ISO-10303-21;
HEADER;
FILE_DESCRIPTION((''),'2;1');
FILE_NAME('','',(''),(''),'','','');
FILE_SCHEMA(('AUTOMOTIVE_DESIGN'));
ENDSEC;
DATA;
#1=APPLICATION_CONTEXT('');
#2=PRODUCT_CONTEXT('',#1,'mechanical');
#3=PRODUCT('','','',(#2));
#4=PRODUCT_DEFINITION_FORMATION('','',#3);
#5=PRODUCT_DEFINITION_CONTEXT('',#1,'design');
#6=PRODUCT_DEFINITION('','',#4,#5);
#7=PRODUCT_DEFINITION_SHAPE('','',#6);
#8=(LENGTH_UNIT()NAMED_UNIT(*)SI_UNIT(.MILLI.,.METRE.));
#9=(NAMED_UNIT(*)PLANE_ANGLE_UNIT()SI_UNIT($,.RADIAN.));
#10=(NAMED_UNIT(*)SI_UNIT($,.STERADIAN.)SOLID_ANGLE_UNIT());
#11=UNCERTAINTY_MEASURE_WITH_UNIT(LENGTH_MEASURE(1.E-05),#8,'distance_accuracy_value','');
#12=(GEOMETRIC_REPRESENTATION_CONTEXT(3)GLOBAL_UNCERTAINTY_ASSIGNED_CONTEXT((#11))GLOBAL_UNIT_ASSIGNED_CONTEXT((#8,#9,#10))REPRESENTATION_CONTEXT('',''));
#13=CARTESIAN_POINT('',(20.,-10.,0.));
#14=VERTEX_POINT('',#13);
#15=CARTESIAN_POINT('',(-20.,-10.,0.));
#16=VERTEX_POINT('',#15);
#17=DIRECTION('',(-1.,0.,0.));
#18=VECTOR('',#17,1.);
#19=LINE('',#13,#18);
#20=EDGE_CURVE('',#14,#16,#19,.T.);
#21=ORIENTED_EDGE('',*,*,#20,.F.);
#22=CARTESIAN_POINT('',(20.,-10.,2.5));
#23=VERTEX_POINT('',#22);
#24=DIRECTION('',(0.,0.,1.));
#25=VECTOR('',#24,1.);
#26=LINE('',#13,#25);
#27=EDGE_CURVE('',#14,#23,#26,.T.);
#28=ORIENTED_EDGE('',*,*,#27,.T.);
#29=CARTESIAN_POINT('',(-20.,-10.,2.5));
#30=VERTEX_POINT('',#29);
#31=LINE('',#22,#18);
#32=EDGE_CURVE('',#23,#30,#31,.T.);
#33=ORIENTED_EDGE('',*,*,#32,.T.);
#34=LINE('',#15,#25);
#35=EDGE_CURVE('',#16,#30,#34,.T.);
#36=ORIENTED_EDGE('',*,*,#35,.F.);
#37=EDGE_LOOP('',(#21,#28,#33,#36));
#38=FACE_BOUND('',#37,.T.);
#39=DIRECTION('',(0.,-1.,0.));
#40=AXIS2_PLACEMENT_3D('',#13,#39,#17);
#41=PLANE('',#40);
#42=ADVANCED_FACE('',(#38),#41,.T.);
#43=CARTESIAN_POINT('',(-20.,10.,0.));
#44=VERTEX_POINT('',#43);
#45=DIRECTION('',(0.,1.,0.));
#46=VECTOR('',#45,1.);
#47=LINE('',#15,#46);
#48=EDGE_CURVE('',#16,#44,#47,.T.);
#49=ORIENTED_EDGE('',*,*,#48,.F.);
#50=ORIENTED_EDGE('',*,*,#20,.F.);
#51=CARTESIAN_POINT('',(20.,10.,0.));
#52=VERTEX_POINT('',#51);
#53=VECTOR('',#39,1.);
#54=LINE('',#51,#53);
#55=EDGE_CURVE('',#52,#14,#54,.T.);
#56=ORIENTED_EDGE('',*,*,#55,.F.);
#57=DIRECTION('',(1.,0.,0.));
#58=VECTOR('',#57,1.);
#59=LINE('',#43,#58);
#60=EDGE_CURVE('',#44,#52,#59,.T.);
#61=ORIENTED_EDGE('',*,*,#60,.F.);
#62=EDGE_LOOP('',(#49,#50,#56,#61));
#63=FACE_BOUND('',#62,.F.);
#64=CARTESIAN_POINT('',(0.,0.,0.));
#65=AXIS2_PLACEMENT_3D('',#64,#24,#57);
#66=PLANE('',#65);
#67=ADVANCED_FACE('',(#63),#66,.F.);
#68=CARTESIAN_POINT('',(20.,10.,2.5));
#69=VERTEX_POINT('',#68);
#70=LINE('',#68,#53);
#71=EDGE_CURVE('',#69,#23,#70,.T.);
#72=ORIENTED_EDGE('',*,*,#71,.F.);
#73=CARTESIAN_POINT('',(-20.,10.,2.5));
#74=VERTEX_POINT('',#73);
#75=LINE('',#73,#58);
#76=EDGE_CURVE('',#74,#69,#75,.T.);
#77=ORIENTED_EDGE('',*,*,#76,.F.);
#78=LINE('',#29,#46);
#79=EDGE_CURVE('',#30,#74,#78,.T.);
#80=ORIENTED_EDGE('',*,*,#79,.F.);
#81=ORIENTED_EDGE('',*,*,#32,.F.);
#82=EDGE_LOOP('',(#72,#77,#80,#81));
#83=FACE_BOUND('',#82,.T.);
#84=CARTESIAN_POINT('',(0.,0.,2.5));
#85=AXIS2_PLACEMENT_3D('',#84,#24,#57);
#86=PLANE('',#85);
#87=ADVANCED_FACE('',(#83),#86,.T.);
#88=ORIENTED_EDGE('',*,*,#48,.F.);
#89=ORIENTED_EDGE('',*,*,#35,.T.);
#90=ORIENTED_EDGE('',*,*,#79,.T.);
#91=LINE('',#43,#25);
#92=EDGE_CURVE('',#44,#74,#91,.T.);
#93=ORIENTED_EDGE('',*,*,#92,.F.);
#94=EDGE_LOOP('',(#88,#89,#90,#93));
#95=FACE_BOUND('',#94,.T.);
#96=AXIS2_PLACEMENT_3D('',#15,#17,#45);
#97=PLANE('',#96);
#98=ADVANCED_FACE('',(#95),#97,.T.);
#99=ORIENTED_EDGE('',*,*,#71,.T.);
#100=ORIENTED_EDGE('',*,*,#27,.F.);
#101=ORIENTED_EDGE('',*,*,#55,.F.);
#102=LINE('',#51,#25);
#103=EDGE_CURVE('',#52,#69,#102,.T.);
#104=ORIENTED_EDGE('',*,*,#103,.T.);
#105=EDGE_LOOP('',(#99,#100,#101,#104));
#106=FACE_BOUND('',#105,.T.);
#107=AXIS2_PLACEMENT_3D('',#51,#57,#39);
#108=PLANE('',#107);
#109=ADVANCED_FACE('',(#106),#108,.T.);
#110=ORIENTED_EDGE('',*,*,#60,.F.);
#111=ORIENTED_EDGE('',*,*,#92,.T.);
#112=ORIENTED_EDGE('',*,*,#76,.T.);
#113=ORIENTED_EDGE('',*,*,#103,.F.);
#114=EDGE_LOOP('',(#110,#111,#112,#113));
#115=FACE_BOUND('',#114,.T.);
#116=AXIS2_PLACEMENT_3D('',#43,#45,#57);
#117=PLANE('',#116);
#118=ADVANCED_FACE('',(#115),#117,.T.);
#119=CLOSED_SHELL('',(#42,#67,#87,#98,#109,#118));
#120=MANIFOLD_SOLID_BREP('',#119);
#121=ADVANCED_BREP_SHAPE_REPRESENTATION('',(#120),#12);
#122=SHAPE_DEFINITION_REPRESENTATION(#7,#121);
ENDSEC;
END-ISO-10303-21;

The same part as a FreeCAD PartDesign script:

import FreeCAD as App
import Part
import Sketcher


def add_polygon(sketch, points):
    """Adds a closed chain of lines whose ends are joined by coincident constraints."""
    first, n = sketch.GeometryCount, len(points)
    for a, b in zip(points, points[1:] + points[:1]):
        sketch.addGeometry(Part.LineSegment(App.Vector(*a, 0), App.Vector(*b, 0)), False)
    for i in range(n):
        sketch.addConstraint(Sketcher.Constraint("Coincident", first + i, 2, first + (i + 1) % n, 1))

doc = App.newDocument("Part")
body = doc.addObject("PartDesign::Body", "Body")

# Sketch on XY plane
sketch1 = doc.addObject("Sketcher::SketchObject", "Sketch")
body.addObject(sketch1)
sketch1.AttachmentSupport = (doc.XY_Plane, [""])
sketch1.MapMode = "FlatFace"
add_polygon(sketch1, [(-20, -10), (20, -10), (20, 10), (-20, 10)])  # lines 0-3
sketch1.addConstraint([
    Sketcher.Constraint("Horizontal", 0),
    Sketcher.Constraint("Vertical", 1),
    Sketcher.Constraint("Horizontal", 2),
    Sketcher.Constraint("Vertical", 3),
    Sketcher.Constraint("Symmetric", 0, 2, 2, 2, -1, 1),
    Sketcher.Constraint("DistanceX", 0, 1, 0, 2, 40.0),
    Sketcher.Constraint("DistanceY", 1, 1, 1, 2, 20.0),
])
pad1 = doc.addObject("PartDesign::Pad", "Pad")
body.addObject(pad1)
pad1.Profile = sketch1
pad1.Length = 2.5

doc.recompute()
